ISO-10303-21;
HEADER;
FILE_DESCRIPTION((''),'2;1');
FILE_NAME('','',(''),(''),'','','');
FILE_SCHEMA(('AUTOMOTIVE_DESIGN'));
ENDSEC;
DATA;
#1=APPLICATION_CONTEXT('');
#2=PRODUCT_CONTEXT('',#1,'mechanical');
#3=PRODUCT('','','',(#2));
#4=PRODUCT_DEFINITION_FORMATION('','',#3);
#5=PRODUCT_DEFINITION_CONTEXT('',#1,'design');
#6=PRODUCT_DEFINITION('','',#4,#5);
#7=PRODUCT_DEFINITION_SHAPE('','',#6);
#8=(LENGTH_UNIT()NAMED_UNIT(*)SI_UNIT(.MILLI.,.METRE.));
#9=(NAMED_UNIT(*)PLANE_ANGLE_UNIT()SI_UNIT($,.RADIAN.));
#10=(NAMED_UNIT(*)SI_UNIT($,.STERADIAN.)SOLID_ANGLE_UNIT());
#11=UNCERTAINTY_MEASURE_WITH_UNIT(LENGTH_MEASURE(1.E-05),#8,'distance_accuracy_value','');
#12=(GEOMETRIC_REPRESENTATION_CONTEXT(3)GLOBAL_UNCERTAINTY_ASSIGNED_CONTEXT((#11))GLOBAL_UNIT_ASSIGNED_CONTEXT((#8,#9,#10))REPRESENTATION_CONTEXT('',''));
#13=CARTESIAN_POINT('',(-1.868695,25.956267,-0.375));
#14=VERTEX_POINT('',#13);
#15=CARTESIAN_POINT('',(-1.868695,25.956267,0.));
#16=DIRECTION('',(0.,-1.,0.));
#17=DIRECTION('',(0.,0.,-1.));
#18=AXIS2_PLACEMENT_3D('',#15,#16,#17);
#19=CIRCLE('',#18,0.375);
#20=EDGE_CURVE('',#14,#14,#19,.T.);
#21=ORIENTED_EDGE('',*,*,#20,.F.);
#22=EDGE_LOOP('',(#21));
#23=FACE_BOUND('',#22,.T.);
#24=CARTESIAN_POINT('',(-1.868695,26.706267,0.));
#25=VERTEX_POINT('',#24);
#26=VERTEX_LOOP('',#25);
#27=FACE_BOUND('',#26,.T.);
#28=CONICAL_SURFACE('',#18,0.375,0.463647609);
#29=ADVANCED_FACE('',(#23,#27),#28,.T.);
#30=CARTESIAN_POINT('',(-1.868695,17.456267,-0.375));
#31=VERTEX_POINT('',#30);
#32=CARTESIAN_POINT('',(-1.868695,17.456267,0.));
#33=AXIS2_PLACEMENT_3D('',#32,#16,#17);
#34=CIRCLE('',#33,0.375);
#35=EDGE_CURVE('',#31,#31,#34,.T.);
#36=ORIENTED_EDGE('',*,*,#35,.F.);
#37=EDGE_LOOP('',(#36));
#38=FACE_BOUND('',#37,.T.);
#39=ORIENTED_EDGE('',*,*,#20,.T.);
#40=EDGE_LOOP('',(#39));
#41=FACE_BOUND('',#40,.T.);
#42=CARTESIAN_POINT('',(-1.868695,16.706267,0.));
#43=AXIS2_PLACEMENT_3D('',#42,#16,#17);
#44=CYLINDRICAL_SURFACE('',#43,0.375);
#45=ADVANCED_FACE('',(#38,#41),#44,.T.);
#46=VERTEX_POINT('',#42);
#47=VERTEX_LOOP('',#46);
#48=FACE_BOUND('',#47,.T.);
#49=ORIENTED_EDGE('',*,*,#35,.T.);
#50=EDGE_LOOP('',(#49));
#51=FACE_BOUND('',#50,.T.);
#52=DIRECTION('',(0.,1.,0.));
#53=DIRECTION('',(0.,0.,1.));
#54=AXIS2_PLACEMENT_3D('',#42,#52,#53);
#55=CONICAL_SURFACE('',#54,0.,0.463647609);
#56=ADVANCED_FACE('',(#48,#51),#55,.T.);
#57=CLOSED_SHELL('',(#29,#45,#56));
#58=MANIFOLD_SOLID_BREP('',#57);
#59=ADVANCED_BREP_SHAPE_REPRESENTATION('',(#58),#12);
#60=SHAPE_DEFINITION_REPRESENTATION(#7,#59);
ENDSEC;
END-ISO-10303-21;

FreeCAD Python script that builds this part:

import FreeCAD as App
import Part
import Sketcher

V = App.Vector
Q = App.Units.Quantity

doc = App.newDocument("Part")
body = doc.addObject("PartDesign::Body", "Body")

# Sketch on XY plane
sketch1 = body.newObject("Sketcher::SketchObject", "Sketch")
sketch1.AttachmentSupport = (doc.getObject("XY_Plane"), [""])
sketch1.MapMode = "FlatFace"
sketch1.addGeometry([
    Part.LineSegment(V(-1.868695, 16.706267, 0), V(-1.493695, 17.456267, 0)),
    Part.LineSegment(V(-1.493695, 17.456267, 0), V(-1.493695, 25.956267, 0)),
    Part.LineSegment(V(-1.493695, 25.956267, 0), V(-1.868695, 26.706267, 0)),
    Part.LineSegment(V(-1.868695, 26.706267, 0), V(-1.868695, 16.706267, 0)),
], False)
sketch1.addGeometry(Part.LineSegment(V(-1.868695, 16.706267, 0), V(-1.868695, 26.706267, 0)), True)  # axis
sketch1.addConstraint([
    Sketcher.Constraint("Coincident", 0, 2, 1, 1),
    Sketcher.Constraint("Coincident", 1, 2, 2, 1),
    Sketcher.Constraint("Coincident", 2, 2, 3, 1),
    Sketcher.Constraint("Coincident", 3, 2, 0, 1),
    Sketcher.Constraint("Vertical", 1),
    Sketcher.Constraint("Vertical", 3),
    Sketcher.Constraint("Vertical", 4),
    Sketcher.Constraint("Coincident", 4, 1, 3, 2),
    Sketcher.Constraint("Equal", 3, 4),
    Sketcher.Constraint("Equal", 0, 2),
    Sketcher.Constraint("DistanceY", 3, 2, 3, 1, Q("10 mm")),
    Sketcher.Constraint("DistanceY", 1, 1, 1, 2, Q("8.5 mm")),
    Sketcher.Constraint("DistanceX", 2, 2, 1, 2, Q("0.375 mm")),
    Sketcher.Constraint("DistanceX", 0, 2, -1, 1, Q("1.493695 mm")),
    Sketcher.Constraint("DistanceY", -1, 1, 0, 2, Q("17.456267 mm")),
])
revolution = body.newObject("PartDesign::Revolution", "Revolution")
revolution.Profile = sketch1
revolution.ReferenceAxis = (sketch1, ["Axis0"])
revolution.Angle = 360

doc.recompute()
